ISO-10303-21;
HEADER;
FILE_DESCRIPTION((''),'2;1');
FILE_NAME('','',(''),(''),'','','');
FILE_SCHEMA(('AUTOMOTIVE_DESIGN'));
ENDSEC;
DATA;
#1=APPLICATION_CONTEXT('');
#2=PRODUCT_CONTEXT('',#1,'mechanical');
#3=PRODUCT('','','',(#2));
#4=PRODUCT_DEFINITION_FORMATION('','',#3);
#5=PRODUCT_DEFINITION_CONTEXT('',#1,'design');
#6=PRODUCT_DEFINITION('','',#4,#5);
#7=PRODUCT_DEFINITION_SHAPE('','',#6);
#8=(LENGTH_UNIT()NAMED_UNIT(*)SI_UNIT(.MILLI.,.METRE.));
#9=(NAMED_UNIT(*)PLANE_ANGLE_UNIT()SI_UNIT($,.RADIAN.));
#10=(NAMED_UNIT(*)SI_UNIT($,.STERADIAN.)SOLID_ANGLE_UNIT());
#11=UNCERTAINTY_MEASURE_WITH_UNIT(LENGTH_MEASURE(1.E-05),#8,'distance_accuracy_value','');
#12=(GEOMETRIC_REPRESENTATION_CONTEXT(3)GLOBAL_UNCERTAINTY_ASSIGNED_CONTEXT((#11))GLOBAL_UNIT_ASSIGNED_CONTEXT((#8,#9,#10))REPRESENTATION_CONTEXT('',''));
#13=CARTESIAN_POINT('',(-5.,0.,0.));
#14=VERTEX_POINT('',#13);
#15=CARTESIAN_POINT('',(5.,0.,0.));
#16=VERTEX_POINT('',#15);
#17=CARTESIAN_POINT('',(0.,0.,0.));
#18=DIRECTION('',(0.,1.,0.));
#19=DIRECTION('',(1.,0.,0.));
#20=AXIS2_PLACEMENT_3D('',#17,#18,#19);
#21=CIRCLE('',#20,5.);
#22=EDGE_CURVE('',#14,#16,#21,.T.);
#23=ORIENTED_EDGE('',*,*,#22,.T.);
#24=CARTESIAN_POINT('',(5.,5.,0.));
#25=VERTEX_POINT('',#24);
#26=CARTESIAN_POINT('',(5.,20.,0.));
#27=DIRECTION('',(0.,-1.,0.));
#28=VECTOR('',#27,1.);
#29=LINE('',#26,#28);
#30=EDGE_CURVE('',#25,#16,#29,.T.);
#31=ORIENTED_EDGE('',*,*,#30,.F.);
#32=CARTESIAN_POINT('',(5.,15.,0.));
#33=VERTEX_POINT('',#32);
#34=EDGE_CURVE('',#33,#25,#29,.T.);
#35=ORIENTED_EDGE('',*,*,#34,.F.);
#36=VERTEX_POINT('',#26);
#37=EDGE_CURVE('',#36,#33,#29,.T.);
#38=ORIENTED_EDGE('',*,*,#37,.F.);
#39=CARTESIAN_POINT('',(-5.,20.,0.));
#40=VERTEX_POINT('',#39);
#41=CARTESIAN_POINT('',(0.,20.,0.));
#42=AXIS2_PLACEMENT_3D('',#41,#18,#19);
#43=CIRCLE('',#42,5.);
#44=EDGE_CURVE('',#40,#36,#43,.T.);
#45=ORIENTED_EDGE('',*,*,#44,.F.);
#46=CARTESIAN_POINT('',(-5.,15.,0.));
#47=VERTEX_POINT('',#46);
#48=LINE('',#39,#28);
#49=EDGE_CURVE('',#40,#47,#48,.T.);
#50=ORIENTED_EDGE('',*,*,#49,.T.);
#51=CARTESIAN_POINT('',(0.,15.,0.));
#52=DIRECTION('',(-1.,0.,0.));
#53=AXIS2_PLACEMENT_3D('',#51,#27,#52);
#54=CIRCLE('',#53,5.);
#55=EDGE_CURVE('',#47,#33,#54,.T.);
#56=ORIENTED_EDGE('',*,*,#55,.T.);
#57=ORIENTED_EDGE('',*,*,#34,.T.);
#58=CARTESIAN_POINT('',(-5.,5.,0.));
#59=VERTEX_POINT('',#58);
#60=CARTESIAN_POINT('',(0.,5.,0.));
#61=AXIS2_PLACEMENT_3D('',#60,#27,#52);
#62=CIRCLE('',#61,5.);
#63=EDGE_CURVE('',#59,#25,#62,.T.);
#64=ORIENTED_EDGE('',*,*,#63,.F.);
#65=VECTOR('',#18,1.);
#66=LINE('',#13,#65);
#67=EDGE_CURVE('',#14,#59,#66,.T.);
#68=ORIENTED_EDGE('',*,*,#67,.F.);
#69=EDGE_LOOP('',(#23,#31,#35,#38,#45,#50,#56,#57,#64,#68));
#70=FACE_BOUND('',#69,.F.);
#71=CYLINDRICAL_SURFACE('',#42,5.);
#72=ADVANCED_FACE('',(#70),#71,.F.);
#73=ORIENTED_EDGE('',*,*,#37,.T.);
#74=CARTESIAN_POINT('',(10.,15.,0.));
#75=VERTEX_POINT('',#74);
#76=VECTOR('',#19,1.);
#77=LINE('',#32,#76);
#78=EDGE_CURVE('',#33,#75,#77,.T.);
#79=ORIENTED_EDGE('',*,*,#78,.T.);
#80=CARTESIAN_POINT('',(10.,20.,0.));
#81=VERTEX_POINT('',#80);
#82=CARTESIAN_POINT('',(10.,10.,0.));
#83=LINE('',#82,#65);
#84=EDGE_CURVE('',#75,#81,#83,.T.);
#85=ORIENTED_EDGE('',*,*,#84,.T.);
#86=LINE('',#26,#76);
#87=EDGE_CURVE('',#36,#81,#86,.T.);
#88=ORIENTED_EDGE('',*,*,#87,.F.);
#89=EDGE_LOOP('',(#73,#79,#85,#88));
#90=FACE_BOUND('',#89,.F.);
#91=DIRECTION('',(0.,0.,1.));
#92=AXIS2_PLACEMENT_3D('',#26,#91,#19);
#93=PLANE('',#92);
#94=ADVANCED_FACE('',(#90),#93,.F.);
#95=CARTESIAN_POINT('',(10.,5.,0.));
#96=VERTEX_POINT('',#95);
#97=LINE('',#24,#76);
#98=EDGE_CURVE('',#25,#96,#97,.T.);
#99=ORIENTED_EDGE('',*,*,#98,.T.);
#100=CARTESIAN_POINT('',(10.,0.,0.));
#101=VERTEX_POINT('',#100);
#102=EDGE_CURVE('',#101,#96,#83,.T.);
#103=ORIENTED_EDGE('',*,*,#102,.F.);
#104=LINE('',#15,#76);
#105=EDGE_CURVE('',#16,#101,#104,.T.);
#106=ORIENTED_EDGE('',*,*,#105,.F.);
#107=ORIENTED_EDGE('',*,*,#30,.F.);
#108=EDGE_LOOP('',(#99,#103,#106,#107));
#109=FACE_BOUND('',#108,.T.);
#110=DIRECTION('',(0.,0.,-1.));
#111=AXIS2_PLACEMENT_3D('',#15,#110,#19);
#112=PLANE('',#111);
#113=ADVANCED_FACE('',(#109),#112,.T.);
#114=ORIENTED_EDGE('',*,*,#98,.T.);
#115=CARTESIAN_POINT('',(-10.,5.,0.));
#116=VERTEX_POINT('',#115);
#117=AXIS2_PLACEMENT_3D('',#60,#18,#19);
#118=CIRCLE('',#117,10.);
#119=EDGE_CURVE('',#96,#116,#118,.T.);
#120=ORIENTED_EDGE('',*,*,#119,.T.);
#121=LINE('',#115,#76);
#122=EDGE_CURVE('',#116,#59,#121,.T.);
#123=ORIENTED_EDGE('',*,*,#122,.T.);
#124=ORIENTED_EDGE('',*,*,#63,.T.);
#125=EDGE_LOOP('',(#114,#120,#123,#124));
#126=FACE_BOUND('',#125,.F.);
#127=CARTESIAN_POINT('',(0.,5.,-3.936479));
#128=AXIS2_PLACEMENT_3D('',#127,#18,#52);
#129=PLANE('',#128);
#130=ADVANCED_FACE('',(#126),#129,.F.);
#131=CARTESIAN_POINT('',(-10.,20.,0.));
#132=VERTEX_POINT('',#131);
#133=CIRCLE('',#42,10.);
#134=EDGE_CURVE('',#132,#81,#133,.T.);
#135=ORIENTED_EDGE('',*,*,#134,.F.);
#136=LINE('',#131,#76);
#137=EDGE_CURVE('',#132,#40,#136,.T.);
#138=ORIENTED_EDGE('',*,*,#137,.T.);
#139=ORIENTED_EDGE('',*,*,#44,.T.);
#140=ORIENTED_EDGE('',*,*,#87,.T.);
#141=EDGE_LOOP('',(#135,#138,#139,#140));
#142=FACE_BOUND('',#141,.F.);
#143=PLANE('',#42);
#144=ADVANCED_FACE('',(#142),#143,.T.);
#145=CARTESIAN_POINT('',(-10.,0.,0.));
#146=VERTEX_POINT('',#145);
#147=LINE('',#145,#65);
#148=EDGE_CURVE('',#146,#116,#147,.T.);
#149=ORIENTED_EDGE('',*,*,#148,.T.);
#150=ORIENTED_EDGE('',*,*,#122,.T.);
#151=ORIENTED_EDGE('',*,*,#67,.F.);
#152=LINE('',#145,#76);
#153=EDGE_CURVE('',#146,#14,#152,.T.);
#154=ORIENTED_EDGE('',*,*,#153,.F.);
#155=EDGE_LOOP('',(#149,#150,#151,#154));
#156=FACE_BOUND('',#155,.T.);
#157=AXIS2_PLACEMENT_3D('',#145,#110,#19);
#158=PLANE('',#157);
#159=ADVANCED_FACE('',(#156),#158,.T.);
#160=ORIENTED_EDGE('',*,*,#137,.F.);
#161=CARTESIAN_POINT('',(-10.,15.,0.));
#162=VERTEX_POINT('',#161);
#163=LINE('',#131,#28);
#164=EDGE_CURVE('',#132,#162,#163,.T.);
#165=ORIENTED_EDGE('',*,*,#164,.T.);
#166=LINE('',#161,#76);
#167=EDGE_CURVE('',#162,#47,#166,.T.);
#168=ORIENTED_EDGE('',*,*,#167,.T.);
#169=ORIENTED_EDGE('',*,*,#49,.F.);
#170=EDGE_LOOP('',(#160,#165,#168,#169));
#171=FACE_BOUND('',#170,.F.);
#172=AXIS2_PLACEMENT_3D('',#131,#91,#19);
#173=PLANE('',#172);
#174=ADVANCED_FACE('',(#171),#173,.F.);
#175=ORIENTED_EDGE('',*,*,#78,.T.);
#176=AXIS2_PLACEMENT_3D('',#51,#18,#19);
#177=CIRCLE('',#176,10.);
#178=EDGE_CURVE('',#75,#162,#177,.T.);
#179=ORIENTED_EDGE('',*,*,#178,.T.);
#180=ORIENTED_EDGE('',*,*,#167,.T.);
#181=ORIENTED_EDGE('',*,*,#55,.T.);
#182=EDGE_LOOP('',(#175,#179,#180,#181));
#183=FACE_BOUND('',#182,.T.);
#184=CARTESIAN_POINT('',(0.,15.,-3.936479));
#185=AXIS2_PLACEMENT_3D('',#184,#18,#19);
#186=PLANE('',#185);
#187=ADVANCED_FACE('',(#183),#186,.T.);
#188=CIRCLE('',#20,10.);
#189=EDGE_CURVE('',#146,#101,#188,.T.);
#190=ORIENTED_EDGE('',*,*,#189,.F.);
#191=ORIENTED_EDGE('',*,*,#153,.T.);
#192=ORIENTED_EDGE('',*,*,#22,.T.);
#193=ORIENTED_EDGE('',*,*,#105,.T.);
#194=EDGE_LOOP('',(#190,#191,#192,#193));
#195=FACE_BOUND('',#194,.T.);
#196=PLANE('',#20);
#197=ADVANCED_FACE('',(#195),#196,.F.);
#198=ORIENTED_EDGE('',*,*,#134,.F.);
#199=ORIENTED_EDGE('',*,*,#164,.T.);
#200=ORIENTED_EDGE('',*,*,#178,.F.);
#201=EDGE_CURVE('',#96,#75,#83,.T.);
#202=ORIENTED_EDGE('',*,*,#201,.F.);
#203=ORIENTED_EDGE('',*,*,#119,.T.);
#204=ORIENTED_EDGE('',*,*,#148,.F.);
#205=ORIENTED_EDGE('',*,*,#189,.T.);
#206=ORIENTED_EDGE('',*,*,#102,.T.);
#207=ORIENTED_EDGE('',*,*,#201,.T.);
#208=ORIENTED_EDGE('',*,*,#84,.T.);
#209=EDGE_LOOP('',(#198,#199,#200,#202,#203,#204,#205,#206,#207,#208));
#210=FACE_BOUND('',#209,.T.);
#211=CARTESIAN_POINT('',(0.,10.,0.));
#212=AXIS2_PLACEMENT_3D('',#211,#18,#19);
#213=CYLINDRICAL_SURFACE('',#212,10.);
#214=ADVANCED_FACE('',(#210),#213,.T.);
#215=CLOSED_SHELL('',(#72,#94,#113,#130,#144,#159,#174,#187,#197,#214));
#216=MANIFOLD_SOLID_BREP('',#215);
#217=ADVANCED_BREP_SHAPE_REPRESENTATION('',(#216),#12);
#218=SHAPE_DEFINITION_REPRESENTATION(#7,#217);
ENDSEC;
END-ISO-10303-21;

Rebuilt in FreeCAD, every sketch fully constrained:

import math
import FreeCAD as App
import Part
import Sketcher
from FreeCAD import Vector


def add_polygon(sketch, points):
    """Adds a closed chain of lines whose ends are joined by coincident constraints."""
    first, n = sketch.GeometryCount, len(points)
    for a, b in zip(points, points[1:] + points[:1]):
        sketch.addGeometry(Part.LineSegment(App.Vector(*a, 0), App.Vector(*b, 0)), False)
    for i in range(n):
        sketch.addConstraint(Sketcher.Constraint("Coincident", first + i, 2, first + (i + 1) % n, 1))

doc = App.newDocument("Part")
body = doc.addObject("PartDesign::Body", "Body")

# Sketch on XY plane
sketch1 = body.newObject("Sketcher::SketchObject", "Sketch")
sketch1.AttachmentSupport = (doc.getObject("XY_Plane"), [""])
sketch1.MapMode = "FlatFace"
add_polygon(sketch1, [(0, 20), (0, 0), (10, 0), (10, 20)])  # lines 0-3
sketch1.addConstraint([
    Sketcher.Constraint("Vertical", 0),
    Sketcher.Constraint("Horizontal", 1),
    Sketcher.Constraint("Vertical", 2),
    Sketcher.Constraint("Horizontal", 3),
    Sketcher.Constraint("Coincident", 0, 2, -1, 1),
    Sketcher.Constraint("DistanceX", 1, 1, 1, 2, 10.0),
    Sketcher.Constraint("DistanceY", 0, 2, 0, 1, 20.0),
])
revolution = body.newObject("PartDesign::Revolution", "Revolution")
revolution.Profile = sketch1
revolution.ReferenceAxis = (sketch1, ["V_Axis"])
revolution.Angle = 360

# Sketch on XZ plane
sketch2 = body.newObject("Sketcher::SketchObject", "Sketch001")
sketch2.AttachmentSupport = (doc.getObject("XZ_Plane"), [""])
sketch2.MapMode = "FlatFace"
sketch2.AttachmentOffset = App.Placement(Vector(0, 0, -20), App.Rotation())
sketch2.addGeometry(Part.Circle(Vector(0, 0, 0), Vector(0, 0, 1), 5), False)
sketch2.addConstraint([
    Sketcher.Constraint("Coincident", 0, 3, -1, 1),
    Sketcher.Constraint("Diameter", 0, 10.0),
])
pocket1 = body.newObject("PartDesign::Pocket", "Pocket")
pocket1.Profile = sketch2
pocket1.Length = 20
pocket1.Reversed = True

# Sketch on XZ plane
sketch3 = body.newObject("Sketcher::SketchObject", "Sketch002")
sketch3.AttachmentSupport = (doc.getObject("XZ_Plane"), [""])
sketch3.MapMode = "FlatFace"
sketch3.AttachmentOffset = App.Placement(Vector(0, 0, -20), App.Rotation())
sketch3.addGeometry([
    Part.LineSegment(Vector(-10, 0, 0), Vector(-5, 0, 0)),
    Part.ArcOfCircle(Part.Circle(Vector(0, 0, 0), Vector(0, 0, 1), 5), math.radians(180), math.radians(360)),
    Part.LineSegment(Vector(5, 0, 0), Vector(10, 0, 0)),
    Part.ArcOfCircle(Part.Circle(Vector(0, 0, 0), Vector(0, 0, 1), 10), math.radians(180), math.radians(360)),
], False)
sketch3.addConstraint([
    Sketcher.Constraint("Coincident", 0, 2, 1, 1),
    Sketcher.Constraint("Coincident", 1, 2, 2, 1),
    Sketcher.Constraint("Coincident", 2, 2, 3, 2),
    Sketcher.Constraint("Coincident", 3, 1, 0, 1),
    Sketcher.Constraint("Horizontal", 0),
    Sketcher.Constraint("Horizontal", 2),
    Sketcher.Constraint("Coincident", 1, 3, -1, 1),
    Sketcher.Constraint("Coincident", 3, 3, -1, 1),
    Sketcher.Constraint("PointOnObject", 0, 2, -1),
    Sketcher.Constraint("PointOnObject", 1, 2, -1),
    Sketcher.Constraint("Radius", 1, 5.0),
    Sketcher.Constraint("Radius", 3, 10.0),
])
pocket2 = body.newObject("PartDesign::Pocket", "Pocket001")
pocket2.Profile = sketch3
pocket2.Length = 5
pocket2.Reversed = True

# Sketch on XZ plane
sketch4 = body.newObject("Sketcher::SketchObject", "Sketch003")
sketch4.AttachmentSupport = (doc.getObject("XZ_Plane"), [""])
sketch4.MapMode = "FlatFace"
sketch4.addGeometry([
    Part.LineSegment(Vector(-5, 0, 0), Vector(-10, 0, 0)),
    Part.ArcOfCircle(Part.Circle(Vector(0, 0, 0), Vector(0, 0, 1), 10), math.radians(180), math.radians(360)),
    Part.LineSegment(Vector(10, 0, 0), Vector(5, 0, 0)),
    Part.ArcOfCircle(Part.Circle(Vector(0, 0, 0), Vector(0, 0, 1), 5), math.radians(180), math.radians(360)),
], False)
sketch4.addConstraint([
    Sketcher.Constraint("Coincident", 0, 2, 1, 1),
    Sketcher.Constraint("Coincident", 1, 2, 2, 1),
    Sketcher.Constraint("Coincident", 2, 2, 3, 2),
    Sketcher.Constraint("Coincident", 3, 1, 0, 1),
    Sketcher.Constraint("Horizontal", 0),
    Sketcher.Constraint("Horizontal", 2),
    Sketcher.Constraint("Coincident", 1, 3, -1, 1),
    Sketcher.Constraint("Coincident", 3, 3, -1, 1),
    Sketcher.Constraint("PointOnObject", 0, 2, -1),
    Sketcher.Constraint("PointOnObject", 1, 2, -1),
    Sketcher.Constraint("Radius", 1, 10.0),
    Sketcher.Constraint("Radius", 3, 5.0),
])
pocket3 = body.newObject("PartDesign::Pocket", "Pocket002")
pocket3.Profile = sketch4
pocket3.Length = 5

doc.recompute()
